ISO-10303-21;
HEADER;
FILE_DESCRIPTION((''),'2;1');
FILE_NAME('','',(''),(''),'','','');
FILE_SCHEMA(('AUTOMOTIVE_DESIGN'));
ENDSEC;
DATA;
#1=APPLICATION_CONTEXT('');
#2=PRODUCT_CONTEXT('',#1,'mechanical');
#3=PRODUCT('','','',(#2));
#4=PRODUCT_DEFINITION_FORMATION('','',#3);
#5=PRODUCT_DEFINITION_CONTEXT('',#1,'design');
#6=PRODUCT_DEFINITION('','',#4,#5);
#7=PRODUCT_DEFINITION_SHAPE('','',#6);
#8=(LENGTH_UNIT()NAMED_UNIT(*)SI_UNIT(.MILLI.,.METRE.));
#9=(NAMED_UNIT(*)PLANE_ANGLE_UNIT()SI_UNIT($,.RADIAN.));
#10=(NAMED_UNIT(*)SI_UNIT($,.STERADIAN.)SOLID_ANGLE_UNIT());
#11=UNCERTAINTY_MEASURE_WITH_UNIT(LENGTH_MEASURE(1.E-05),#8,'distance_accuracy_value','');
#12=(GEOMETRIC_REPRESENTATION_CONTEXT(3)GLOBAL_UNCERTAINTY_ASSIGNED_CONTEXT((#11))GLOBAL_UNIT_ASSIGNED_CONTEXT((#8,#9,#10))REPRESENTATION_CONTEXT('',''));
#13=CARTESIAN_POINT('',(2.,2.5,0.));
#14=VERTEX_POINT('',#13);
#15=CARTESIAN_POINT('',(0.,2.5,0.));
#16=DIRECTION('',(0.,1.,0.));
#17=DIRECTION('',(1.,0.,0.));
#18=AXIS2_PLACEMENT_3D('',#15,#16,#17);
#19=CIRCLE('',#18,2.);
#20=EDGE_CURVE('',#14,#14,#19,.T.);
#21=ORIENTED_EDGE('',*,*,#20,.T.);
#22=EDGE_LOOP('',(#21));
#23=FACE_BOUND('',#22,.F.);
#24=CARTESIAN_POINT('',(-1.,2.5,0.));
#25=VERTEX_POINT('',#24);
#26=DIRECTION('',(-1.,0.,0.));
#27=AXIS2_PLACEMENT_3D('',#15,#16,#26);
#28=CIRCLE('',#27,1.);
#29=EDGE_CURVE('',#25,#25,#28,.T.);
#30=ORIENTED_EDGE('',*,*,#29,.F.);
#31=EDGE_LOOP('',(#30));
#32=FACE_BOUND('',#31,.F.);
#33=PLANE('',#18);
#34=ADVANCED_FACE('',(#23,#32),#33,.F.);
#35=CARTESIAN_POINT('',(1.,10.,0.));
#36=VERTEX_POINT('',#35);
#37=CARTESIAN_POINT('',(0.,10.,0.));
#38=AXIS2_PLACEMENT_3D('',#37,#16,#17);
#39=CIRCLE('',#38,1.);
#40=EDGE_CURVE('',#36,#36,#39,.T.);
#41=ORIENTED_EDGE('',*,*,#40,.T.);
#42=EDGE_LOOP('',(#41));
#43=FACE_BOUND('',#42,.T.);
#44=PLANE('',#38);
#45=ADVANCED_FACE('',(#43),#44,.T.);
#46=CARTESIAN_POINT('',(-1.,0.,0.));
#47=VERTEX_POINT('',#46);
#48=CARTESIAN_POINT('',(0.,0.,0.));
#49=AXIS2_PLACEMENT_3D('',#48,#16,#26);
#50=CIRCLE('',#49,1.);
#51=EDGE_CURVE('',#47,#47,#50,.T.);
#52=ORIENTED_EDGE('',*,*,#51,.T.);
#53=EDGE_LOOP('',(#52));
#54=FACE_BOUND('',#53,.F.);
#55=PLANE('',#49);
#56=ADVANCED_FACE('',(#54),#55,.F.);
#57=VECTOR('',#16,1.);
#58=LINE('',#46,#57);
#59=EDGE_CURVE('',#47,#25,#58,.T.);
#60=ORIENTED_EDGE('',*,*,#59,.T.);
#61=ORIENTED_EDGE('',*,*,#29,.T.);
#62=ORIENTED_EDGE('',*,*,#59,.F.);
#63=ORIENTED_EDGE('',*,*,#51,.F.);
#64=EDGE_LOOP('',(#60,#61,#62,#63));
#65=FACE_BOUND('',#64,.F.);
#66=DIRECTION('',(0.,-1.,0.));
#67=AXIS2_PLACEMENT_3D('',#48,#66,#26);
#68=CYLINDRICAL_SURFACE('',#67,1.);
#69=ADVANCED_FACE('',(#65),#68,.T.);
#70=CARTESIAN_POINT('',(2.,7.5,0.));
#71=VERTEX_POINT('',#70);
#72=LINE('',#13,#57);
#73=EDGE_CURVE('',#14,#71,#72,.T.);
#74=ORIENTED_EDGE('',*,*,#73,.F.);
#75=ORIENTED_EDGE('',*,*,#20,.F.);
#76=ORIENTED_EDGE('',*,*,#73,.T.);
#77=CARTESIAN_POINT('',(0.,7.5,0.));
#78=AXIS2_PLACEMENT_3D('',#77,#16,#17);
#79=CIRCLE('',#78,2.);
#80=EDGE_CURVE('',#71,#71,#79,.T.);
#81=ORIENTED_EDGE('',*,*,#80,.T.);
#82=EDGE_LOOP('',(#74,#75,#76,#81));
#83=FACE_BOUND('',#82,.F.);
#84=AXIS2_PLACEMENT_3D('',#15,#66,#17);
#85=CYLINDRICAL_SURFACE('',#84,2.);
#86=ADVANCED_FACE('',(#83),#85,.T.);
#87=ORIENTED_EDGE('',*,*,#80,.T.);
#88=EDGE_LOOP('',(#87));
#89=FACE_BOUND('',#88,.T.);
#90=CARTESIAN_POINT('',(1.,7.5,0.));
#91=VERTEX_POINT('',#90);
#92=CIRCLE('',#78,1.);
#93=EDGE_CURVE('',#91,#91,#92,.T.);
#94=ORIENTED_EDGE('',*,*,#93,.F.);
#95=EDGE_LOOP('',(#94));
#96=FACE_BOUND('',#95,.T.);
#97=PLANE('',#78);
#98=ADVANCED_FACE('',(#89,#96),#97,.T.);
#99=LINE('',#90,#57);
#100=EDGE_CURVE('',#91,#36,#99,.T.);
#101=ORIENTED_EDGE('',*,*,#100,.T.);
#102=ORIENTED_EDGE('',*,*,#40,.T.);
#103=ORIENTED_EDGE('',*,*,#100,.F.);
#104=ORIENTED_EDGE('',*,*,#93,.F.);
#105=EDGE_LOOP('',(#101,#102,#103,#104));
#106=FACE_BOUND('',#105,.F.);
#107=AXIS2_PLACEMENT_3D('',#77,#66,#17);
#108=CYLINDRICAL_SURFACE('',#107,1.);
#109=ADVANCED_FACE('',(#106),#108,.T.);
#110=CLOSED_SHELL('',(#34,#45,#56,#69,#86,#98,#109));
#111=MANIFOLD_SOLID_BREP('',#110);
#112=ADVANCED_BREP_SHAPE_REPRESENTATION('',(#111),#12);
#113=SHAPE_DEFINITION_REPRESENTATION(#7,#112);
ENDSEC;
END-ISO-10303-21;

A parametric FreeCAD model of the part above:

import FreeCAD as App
import Part
import Sketcher

V = App.Vector

doc = App.newDocument("Part")
body = doc.addObject("PartDesign::Body", "Body")

sketch1 = body.newObject("Sketcher::SketchObject", "Sketch")
sketch1.AttachmentSupport = (doc.getObject("XZ_Plane"), [""])
sketch1.MapMode = "FlatFace"
sketch1.addGeometry(Part.Circle(V(0, 0, 0), V(0, 0, 1), 1), False)
sketch1.addConstraint(Sketcher.Constraint("Coincident", 0, 3, -1, 1))
sketch1.addConstraint(Sketcher.Constraint("Diameter", 0, 2.0))
pad1 = body.newObject("PartDesign::Pad", "Pad")
pad1.Profile = sketch1
pad1.Length = 2.5
pad1.Reversed = True

sketch2 = body.newObject("Sketcher::SketchObject", "Sketch001")
sketch2.AttachmentSupport = (doc.getObject("XZ_Plane"), [""])
sketch2.MapMode = "FlatFace"
sketch2.AttachmentOffset = App.Placement(V(0, 0, -2.5), App.Rotation())
sketch2.addGeometry(Part.Circle(V(0, 0, 0), V(0, 0, 1), 2), False)
sketch2.addConstraint(Sketcher.Constraint("Coincident", 0, 3, -1, 1))
sketch2.addConstraint(Sketcher.Constraint("Diameter", 0, 4.0))
pad2 = body.newObject("PartDesign::Pad", "Pad001")
pad2.Profile = sketch2
pad2.Length = 5
pad2.Reversed = True

sketch3 = body.newObject("Sketcher::SketchObject", "Sketch002")
sketch3.AttachmentSupport = (doc.getObject("XZ_Plane"), [""])
sketch3.MapMode = "FlatFace"
sketch3.AttachmentOffset = App.Placement(V(0, 0, -7.5), App.Rotation())
sketch3.addGeometry(Part.Circle(V(0, 0, 0), V(0, 0, 1), 1), False)
sketch3.addConstraint(Sketcher.Constraint("Coincident", 0, 3, -1, 1))
sketch3.addConstraint(Sketcher.Constraint("Diameter", 0, 2.0))
pad3 = body.newObject("PartDesign::Pad", "Pad002")
pad3.Profile = sketch3
pad3.Length = 2.5
pad3.Reversed = True

doc.recompute()
